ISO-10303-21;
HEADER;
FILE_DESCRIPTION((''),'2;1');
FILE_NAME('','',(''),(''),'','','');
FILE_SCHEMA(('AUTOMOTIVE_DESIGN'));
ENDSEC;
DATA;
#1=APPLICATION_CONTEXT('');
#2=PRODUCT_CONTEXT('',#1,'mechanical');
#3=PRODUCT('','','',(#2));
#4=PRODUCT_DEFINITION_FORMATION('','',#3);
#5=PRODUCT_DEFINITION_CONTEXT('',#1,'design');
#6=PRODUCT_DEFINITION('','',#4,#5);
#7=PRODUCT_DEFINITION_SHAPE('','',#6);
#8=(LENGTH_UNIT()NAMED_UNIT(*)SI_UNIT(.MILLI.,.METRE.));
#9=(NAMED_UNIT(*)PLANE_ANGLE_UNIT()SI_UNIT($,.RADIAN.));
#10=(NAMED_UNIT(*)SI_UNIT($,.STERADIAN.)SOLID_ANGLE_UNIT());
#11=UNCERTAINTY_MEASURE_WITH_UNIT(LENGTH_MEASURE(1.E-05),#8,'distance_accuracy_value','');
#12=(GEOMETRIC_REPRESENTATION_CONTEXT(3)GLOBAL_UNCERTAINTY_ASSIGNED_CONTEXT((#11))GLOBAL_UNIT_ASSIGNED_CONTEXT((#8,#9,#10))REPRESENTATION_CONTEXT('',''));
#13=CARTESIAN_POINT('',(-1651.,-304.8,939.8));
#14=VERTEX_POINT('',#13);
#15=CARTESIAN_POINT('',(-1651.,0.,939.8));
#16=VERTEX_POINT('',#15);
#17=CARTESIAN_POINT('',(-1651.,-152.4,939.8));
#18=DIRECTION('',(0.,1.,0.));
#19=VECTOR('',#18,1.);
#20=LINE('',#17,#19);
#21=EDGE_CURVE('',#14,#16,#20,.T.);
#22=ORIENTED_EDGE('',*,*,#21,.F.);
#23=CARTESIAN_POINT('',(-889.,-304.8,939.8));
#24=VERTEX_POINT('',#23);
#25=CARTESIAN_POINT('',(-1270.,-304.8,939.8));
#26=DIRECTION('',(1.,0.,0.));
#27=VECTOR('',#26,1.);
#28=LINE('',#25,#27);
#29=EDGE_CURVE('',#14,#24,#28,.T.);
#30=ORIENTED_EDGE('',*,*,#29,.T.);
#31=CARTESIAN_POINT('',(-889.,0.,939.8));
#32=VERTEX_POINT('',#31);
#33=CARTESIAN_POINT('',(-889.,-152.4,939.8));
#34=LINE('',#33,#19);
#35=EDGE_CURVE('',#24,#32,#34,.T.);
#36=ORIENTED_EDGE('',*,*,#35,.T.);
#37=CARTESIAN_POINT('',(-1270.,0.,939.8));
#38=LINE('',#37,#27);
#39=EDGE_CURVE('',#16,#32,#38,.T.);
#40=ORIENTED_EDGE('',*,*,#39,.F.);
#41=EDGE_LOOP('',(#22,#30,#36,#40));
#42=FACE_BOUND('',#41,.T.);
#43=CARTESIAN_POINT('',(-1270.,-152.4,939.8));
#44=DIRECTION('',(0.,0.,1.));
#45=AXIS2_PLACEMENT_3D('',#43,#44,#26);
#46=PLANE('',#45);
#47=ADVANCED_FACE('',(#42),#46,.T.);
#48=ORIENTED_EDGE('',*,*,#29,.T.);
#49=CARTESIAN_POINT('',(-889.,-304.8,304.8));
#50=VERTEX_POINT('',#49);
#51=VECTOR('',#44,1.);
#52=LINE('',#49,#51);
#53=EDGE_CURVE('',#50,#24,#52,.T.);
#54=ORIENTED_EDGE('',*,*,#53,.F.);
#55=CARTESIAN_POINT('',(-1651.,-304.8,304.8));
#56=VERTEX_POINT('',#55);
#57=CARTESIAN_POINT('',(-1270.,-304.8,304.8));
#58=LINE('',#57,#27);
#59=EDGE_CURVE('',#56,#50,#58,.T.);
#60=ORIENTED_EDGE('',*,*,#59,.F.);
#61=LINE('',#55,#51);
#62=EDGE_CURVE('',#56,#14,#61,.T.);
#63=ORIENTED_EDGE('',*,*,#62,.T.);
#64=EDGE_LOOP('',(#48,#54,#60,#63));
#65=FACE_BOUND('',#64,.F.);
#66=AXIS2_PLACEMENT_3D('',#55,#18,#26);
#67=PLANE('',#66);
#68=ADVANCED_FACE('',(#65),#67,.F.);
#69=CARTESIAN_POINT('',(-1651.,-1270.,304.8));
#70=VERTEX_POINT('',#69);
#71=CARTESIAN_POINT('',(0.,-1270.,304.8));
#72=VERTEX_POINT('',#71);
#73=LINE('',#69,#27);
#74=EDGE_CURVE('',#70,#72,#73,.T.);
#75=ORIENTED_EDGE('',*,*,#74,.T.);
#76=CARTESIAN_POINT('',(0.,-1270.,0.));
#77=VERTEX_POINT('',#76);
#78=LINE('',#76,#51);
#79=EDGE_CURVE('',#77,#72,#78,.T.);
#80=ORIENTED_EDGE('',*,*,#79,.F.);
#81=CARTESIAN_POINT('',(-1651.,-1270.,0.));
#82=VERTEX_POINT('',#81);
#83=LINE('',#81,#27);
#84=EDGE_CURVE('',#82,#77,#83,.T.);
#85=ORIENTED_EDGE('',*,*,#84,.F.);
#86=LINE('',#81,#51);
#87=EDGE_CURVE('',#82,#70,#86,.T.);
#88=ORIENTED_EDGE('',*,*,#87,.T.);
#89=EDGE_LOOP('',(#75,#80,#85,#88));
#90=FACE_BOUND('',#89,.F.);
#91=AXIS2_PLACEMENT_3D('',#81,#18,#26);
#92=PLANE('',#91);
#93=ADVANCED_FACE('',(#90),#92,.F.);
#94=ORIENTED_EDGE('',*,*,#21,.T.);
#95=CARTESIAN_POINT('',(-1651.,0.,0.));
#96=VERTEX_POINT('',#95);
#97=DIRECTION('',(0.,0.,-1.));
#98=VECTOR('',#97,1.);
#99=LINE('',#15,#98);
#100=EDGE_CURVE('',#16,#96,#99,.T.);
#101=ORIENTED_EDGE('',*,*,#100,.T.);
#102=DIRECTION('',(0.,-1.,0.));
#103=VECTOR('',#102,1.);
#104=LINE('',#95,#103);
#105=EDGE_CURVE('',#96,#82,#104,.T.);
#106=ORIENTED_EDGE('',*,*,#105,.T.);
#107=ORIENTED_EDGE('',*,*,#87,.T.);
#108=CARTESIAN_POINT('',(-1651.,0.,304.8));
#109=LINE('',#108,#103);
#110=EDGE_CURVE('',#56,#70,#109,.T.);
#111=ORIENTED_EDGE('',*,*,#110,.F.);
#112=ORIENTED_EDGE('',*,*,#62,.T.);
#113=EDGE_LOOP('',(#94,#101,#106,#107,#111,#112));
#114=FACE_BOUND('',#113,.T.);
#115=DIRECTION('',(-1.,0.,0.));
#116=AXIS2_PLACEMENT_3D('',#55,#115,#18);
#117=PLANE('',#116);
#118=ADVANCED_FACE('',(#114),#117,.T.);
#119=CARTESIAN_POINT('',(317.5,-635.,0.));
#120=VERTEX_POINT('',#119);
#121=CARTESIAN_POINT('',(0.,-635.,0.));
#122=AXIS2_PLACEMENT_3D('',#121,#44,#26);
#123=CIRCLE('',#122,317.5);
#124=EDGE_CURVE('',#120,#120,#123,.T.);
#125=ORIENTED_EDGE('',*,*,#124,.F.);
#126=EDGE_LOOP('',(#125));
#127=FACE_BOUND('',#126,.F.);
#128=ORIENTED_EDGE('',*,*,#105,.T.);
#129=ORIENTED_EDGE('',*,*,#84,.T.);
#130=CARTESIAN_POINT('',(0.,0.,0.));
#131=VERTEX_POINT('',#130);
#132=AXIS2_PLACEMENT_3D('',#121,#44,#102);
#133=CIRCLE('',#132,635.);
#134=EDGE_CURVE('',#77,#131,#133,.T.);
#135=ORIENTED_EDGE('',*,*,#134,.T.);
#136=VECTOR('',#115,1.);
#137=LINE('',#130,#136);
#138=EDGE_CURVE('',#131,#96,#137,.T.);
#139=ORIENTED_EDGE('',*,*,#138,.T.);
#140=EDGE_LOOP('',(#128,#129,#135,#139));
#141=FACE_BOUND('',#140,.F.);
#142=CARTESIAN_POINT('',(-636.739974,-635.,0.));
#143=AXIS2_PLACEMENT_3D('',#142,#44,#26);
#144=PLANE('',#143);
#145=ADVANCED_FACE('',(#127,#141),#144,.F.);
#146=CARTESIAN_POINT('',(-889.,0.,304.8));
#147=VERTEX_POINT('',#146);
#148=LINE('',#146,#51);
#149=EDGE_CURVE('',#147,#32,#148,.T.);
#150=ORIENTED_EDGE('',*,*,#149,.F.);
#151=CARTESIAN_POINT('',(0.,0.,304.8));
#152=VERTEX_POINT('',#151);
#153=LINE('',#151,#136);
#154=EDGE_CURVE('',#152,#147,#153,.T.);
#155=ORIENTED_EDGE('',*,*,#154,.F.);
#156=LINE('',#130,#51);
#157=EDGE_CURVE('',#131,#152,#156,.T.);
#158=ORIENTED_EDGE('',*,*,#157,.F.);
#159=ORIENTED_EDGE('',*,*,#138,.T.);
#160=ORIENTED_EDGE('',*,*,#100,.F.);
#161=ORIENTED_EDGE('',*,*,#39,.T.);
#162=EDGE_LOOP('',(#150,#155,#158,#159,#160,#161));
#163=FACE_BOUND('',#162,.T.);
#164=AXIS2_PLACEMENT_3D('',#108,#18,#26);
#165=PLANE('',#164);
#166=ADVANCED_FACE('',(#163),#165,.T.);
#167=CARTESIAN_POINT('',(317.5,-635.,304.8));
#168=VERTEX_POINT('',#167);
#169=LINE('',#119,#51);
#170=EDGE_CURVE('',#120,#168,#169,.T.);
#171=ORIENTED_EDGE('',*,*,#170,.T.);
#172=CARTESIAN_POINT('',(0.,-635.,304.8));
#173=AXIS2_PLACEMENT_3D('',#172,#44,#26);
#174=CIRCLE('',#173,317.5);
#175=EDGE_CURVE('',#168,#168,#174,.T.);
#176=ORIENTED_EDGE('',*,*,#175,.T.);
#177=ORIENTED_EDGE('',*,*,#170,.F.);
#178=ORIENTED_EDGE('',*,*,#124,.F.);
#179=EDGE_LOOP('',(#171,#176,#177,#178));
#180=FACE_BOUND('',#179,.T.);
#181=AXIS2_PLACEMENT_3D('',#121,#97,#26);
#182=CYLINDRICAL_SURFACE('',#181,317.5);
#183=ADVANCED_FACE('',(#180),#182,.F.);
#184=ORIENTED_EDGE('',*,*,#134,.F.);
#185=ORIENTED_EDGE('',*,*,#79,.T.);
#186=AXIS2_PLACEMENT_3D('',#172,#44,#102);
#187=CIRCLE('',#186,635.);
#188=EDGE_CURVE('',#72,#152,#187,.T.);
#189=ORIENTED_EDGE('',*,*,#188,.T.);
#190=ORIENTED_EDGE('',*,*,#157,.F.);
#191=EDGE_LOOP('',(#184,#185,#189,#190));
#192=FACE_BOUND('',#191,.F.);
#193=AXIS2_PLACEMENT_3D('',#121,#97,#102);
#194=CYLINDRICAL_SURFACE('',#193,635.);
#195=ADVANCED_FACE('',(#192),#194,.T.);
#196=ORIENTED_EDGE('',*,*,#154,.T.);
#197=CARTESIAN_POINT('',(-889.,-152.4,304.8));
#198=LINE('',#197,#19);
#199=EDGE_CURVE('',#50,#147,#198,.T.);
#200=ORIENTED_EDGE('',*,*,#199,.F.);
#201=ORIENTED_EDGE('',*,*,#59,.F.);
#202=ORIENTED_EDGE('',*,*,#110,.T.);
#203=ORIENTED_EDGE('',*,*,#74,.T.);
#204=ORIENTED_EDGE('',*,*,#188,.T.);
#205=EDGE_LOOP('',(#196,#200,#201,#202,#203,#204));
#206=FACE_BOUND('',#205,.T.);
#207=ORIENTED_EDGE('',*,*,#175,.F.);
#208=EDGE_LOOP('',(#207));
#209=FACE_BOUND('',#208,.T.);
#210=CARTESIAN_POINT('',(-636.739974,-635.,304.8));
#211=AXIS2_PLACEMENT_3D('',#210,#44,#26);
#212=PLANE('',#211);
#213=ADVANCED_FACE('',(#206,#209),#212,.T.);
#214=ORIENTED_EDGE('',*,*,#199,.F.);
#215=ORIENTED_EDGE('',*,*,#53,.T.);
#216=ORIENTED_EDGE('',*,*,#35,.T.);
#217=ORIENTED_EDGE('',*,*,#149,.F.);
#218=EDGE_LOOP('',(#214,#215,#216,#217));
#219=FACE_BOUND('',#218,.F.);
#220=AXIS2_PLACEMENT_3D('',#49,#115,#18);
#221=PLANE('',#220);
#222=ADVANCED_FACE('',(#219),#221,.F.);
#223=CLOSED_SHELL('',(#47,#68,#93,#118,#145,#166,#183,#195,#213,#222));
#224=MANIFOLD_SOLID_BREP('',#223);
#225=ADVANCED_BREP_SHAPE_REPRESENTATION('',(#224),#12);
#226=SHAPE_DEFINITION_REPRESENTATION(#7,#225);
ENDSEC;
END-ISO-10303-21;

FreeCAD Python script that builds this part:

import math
import FreeCAD as App
import Part
import Sketcher
from FreeCAD import Vector
Q = App.Units.Quantity


def add_polygon(sketch, points):
    """Adds a closed chain of lines whose ends are joined by coincident constraints."""
    first, n = sketch.GeometryCount, len(points)
    for a, b in zip(points, points[1:] + points[:1]):
        sketch.addGeometry(Part.LineSegment(App.Vector(*a, 0), App.Vector(*b, 0)), False)
    for i in range(n):
        sketch.addConstraint(Sketcher.Constraint("Coincident", first + i, 2, first + (i + 1) % n, 1))

doc = App.newDocument("Part")
body = doc.addObject("PartDesign::Body", "Body")

sketch1 = doc.addObject("Sketcher::SketchObject", "Sketch")
body.addObject(sketch1)
sketch1.AttachmentSupport = (doc.XY_Plane, [""])
sketch1.MapMode = "FlatFace"
sketch1.addGeometry([
    Part.ArcOfCircle(Part.Circle(Vector(0, -635, 0), Vector(0, 0, 1), 635), math.radians(-90), math.radians(90)),
    Part.LineSegment(Vector(0, 0, 0), Vector(-1651, 0, 0)),
    Part.LineSegment(Vector(-1651, 0, 0), Vector(-1651, -1270, 0)),
    Part.LineSegment(Vector(-1651, -1270, 0), Vector(0, -1270, 0)),
    Part.Circle(Vector(0, -635, 0), Vector(0, 0, 1), 317.5),
], False)
sketch1.addConstraint([
    Sketcher.Constraint("Tangent", 0, 2, 1, 1),
    Sketcher.Constraint("Coincident", 1, 2, 2, 1),
    Sketcher.Constraint("Coincident", 2, 2, 3, 1),
    Sketcher.Constraint("Tangent", 3, 2, 0, 1),
    Sketcher.Constraint("Horizontal", 1),
    Sketcher.Constraint("Vertical", 2),
    Sketcher.Constraint("Horizontal", 3),
    Sketcher.Constraint("Coincident", 4, 3, 0, 3),
    Sketcher.Constraint("PointOnObject", 0, 3, -2),
    Sketcher.Constraint("PointOnObject", 1, 2, -1),
    Sketcher.Constraint("Diameter", 4, Q("25 in")),
    Sketcher.Constraint("Radius", 0, Q("25 in")),
    Sketcher.Constraint("DistanceX", 1, 2, 1, 1, Q("65 in")),
])
pad1 = doc.addObject("PartDesign::Pad", "Pad")
body.addObject(pad1)
pad1.Profile = sketch1
pad1.Length = Q("12 in")

sketch2 = doc.addObject("Sketcher::SketchObject", "Sketch001")
body.addObject(sketch2)
sketch2.AttachmentSupport = (doc.XY_Plane, [""])
sketch2.MapMode = "FlatFace"
sketch2.AttachmentOffset = App.Placement(Vector(0, 0, 12 * 25.4), App.Rotation())
add_polygon(sketch2, [(-1651, 0), (-1651, -304.8), (-889, -304.8), (-889, 0)])
sketch2.addConstraint([
    Sketcher.Constraint("Vertical", 0),
    Sketcher.Constraint("Horizontal", 1),
    Sketcher.Constraint("Vertical", 2),
    Sketcher.Constraint("Horizontal", 3),
    Sketcher.Constraint("PointOnObject", 2, 2, -1),
    Sketcher.Constraint("DistanceX", 1, 1, 1, 2, Q("30 in")),
    Sketcher.Constraint("DistanceY", 0, 2, 0, 1, Q("12 in")),
    Sketcher.Constraint("DistanceX", 0, 2, -1, 1, Q("65 in")),
])
pad2 = doc.addObject("PartDesign::Pad", "Pad001")
body.addObject(pad2)
pad2.Profile = sketch2
pad2.Length = Q("25 in")

doc.recompute()
